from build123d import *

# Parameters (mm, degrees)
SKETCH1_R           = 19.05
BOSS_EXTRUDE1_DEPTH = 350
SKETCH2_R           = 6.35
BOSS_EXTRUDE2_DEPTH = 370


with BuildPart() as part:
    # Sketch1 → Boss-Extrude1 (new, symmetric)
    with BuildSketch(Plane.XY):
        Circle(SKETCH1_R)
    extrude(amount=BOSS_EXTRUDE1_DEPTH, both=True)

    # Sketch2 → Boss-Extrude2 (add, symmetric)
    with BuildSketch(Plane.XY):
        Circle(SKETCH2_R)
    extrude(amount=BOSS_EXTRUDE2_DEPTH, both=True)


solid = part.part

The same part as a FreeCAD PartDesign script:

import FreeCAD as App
import Part
import Sketcher
from FreeCAD import Vector
Q = App.Units.Quantity

doc = App.newDocument("Part")
params = doc.addObject("Spreadsheet::Sheet", "Params")
for row, (alias, value) in enumerate([
    ("sketch1_diameter", "38.1 mm"),
    ("pad1_length", "700 mm"),
    ("sketch2_diameter", "12.7 mm"),
    ("pad2_length", "740 mm"),
], start=1):
    params.set(f"A{row}", alias)
    params.set(f"B{row}", "=" + value)
    params.setAlias(f"B{row}", alias)

body = doc.addObject("PartDesign::Body", "Body")

# Sketch on XY plane
sketch1 = body.newObject("Sketcher::SketchObject", "Sketch")
sketch1.AttachmentSupport = (doc.getObject("XY_Plane"), [""])
sketch1.MapMode = "FlatFace"
sketch1.addGeometry(Part.Circle(Vector(0, 0, 0), Vector(0, 0, 1), 19.05), False)
sketch1.addConstraint([
    Sketcher.Constraint("Coincident", 0, 3, -1, 1),
    Sketcher.Constraint("Diameter", 0, Q("38.1 mm")),
])
sketch1.setExpression("Constraints[1]", "Params.sketch1_diameter")
pad1 = body.newObject("PartDesign::Pad", "Pad")
pad1.Profile = sketch1
pad1.setExpression("Length", "Params.pad1_length")
pad1.Midplane = True

# Sketch on XY plane
sketch2 = body.newObject("Sketcher::SketchObject", "Sketch001")
sketch2.AttachmentSupport = (doc.getObject("XY_Plane"), [""])
sketch2.MapMode = "FlatFace"
sketch2.addGeometry(Part.Circle(Vector(0, 0, 0), Vector(0, 0, 1), 6.35), False)
sketch2.addConstraint([
    Sketcher.Constraint("Coincident", 0, 3, -1, 1),
    Sketcher.Constraint("Diameter", 0, Q("12.7 mm")),
])
sketch2.setExpression("Constraints[1]", "Params.sketch2_diameter")
pad2 = body.newObject("PartDesign::Pad", "Pad001")
pad2.Profile = sketch2
pad2.setExpression("Length", "Params.pad2_length")
pad2.Midplane = True

doc.recompute()
